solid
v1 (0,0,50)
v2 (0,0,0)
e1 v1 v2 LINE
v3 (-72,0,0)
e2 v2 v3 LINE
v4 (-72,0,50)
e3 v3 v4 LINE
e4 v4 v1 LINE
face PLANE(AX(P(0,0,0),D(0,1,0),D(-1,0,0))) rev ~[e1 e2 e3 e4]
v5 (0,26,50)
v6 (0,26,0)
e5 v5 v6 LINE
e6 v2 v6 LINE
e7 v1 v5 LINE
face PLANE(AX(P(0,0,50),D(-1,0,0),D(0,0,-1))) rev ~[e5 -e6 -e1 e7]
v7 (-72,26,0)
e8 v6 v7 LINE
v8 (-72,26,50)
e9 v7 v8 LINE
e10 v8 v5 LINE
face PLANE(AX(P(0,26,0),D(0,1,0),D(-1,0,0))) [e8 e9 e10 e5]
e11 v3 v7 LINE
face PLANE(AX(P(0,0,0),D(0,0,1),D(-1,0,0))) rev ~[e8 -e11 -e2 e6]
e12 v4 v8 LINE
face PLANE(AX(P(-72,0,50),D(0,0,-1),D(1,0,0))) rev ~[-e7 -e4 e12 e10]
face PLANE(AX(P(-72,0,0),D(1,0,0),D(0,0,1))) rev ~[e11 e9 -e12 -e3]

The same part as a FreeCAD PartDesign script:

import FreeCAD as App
import Part
import Sketcher

doc = App.newDocument("Part")
body = doc.addObject("PartDesign::Body", "Body")

# Sketch on XZ plane
sketch1 = body.newObject("Sketcher::SketchObject", "Sketch")
sketch1.AttachmentSupport = (doc.getObject("XZ_Plane"), [""])
sketch1.MapMode = "FlatFace"
sketch1.addGeometry([
    Part.LineSegment(App.Vector(0, 50, 0), App.Vector(0, 0, 0)),
    Part.LineSegment(App.Vector(0, 0, 0), App.Vector(-72, 0, 0)),
    Part.LineSegment(App.Vector(-72, 0, 0), App.Vector(-72, 50, 0)),
    Part.LineSegment(App.Vector(-72, 50, 0), App.Vector(0, 50, 0)),
], False)
sketch1.addConstraint([
    Sketcher.Constraint("Coincident", 0, 2, 1, 1),
    Sketcher.Constraint("Coincident", 1, 2, 2, 1),
    Sketcher.Constraint("Coincident", 2, 2, 3, 1),
    Sketcher.Constraint("Coincident", 3, 2, 0, 1),
    Sketcher.Constraint("Vertical", 0),
    Sketcher.Constraint("Horizontal", 1),
    Sketcher.Constraint("Vertical", 2),
    Sketcher.Constraint("Horizontal", 3),
    Sketcher.Constraint("Coincident", 0, 2, -1, 1),
    Sketcher.Constraint("DistanceX", 1, 2, 1, 1, 72.0),
    Sketcher.Constraint("DistanceY", 0, 2, 0, 1, 50.0),
])
pad1 = body.newObject("PartDesign::Pad", "Pad")
pad1.Profile = sketch1
pad1.Length = 26
pad1.Reversed = True

doc.recompute()
